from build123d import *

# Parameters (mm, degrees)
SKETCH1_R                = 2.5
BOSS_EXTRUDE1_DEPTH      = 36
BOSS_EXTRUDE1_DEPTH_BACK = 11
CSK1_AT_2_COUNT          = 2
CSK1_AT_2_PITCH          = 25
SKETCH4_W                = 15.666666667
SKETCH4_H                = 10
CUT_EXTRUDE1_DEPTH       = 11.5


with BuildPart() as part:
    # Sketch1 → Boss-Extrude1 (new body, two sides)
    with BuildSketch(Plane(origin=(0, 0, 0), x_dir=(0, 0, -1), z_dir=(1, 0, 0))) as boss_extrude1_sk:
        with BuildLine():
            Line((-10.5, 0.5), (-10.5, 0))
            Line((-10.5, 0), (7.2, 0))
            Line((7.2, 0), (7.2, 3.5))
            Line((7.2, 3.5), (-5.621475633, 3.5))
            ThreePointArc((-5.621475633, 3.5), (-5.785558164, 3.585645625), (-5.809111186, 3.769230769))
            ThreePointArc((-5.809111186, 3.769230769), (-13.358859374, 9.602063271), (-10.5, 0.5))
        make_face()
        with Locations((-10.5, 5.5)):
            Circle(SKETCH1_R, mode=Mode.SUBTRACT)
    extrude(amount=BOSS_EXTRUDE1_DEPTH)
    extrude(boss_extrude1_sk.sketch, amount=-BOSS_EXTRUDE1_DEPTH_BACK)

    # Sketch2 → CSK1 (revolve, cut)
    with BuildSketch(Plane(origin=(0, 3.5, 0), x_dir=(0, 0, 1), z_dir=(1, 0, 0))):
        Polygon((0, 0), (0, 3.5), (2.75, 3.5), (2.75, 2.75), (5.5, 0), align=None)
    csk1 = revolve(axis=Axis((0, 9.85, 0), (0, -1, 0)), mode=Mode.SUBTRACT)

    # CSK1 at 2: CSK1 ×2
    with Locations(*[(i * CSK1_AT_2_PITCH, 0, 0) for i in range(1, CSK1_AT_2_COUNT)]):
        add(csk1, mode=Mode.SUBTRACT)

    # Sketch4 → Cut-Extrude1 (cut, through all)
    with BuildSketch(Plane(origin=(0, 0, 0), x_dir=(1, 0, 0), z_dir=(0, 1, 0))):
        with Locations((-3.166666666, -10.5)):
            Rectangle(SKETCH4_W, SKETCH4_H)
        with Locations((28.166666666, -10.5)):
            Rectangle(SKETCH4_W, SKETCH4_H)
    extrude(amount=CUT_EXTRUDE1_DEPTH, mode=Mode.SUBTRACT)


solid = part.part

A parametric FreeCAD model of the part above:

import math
import FreeCAD as App
import Part
import Sketcher
from FreeCAD import Vector
Q = App.Units.Quantity

doc = App.newDocument("Part")
body = doc.addObject("PartDesign::Body", "Body")

sketch1 = doc.addObject("Sketcher::SketchObject", "Sketch")
body.addObject(sketch1)
sketch1.AttachmentSupport = (doc.YZ_Plane, [""])
sketch1.MapMode = "FlatFace"
sketch1.addGeometry([
    Part.LineSegment(Vector(0.5, 10.5, 0), Vector(0, 10.5, 0)),
    Part.LineSegment(Vector(0, 10.5, 0), Vector(0, -7.2, 0)),
    Part.LineSegment(Vector(0, -7.2, 0), Vector(3.5, -7.2, 0)),
    Part.LineSegment(Vector(3.5, -7.2, 0), Vector(3.5, 5.62, 0)),
    Part.ArcOfCircle(Part.Circle(Vector(3.7, 5.62, 0), Vector(0, 0, 1), 0.2), math.radians(70), math.radians(180)),
    Part.ArcOfCircle(Part.Circle(Vector(5.5, 10.5, 0), Vector(0, 0, 1), 5), math.radians(-110), math.radians(180)),
    Part.Circle(Vector(5.5, 10.5, 0), Vector(0, 0, 1), 2.5),
], False)
sketch1.addConstraint([
    Sketcher.Constraint("Coincident", 0, 2, 1, 1),
    Sketcher.Constraint("Coincident", 1, 2, 2, 1),
    Sketcher.Constraint("Coincident", 2, 2, 3, 1),
    Sketcher.Constraint("Tangent", 3, 2, 4, 2),
    Sketcher.Constraint("Tangent", 4, 1, 5, 1),
    Sketcher.Constraint("Coincident", 5, 2, 0, 1),
    Sketcher.Constraint("Horizontal", 0),
    Sketcher.Constraint("Vertical", 1),
    Sketcher.Constraint("Horizontal", 2),
    Sketcher.Constraint("Vertical", 3),
    Sketcher.Constraint("Coincident", 6, 3, 5, 3),
    Sketcher.Constraint("PointOnObject", 0, 2, -2),
    Sketcher.Constraint("Horizontal", 6, 3, 0, 2),
    Sketcher.Constraint("Diameter", 6, Q("5 mm")),
    Sketcher.Constraint("Radius", 5, Q("5 mm")),
    Sketcher.Constraint("Radius", 4, Q("0.2 mm")),
    Sketcher.Constraint("DistanceX", 0, 2, 0, 1, Q("0.5 mm")),
    Sketcher.Constraint("DistanceX", 2, 1, 2, 2, Q("3.5 mm")),
    Sketcher.Constraint("DistanceY", 1, 2, 1, 1, Q("17.7 mm")),
    Sketcher.Constraint("DistanceY", -1, 1, 5, 3, Q("10.5 mm")),
])
pad1 = doc.addObject("PartDesign::Pad", "Pad")
body.addObject(pad1)
pad1.Profile = sketch1
pad1.Type = "TwoLengths"
pad1.Length = 36
pad1.Length2 = 11

sketch2 = doc.addObject("Sketcher::SketchObject", "Sketch001")
body.addObject(sketch2)
sketch2.AttachmentSupport = (doc.YZ_Plane, [""])
sketch2.MapMode = "FlatFace"
sketch2.addGeometry([
    Part.LineSegment(Vector(0, 0, 0), Vector(3.5, 0, 0)),
    Part.LineSegment(Vector(3.5, 0, 0), Vector(3.5, 5.5, 0)),
    Part.LineSegment(Vector(3.5, 5.5, 0), Vector(0.8, 2.8, 0)),
    Part.LineSegment(Vector(0.8, 2.8, 0), Vector(0, 2.8, 0)),
    Part.LineSegment(Vector(0, 2.8, 0), Vector(0, 0, 0)),
], False)
sketch2.addConstraint([
    Sketcher.Constraint("Coincident", 0, 2, 1, 1),
    Sketcher.Constraint("Coincident", 1, 2, 2, 1),
    Sketcher.Constraint("Coincident", 2, 2, 3, 1),
    Sketcher.Constraint("Coincident", 3, 2, 4, 1),
    Sketcher.Constraint("Coincident", 4, 2, 0, 1),
    Sketcher.Constraint("Horizontal", 0),
    Sketcher.Constraint("Vertical", 1),
    Sketcher.Constraint("Horizontal", 3),
    Sketcher.Constraint("Vertical", 4),
    Sketcher.Constraint("Coincident", 4, 2, -1, 1),
    Sketcher.Constraint("Angle", 2, Q("-135 deg")),
    Sketcher.Constraint("DistanceX", 0, 1, 0, 2, Q("3.5 mm")),
    Sketcher.Constraint("DistanceY", 1, 1, 1, 2, Q("5.5 mm")),
    Sketcher.Constraint("DistanceX", 3, 2, 3, 1, Q("0.75 mm")),
])
groove = doc.addObject("PartDesign::Groove", "Groove")
body.addObject(groove)
groove.Profile = sketch2
groove.ReferenceAxis = (sketch2, ["H_Axis"])
groove.Angle = 360
doc.recompute()

linearpattern = doc.addObject("PartDesign::LinearPattern", "LinearPattern")
body.addObject(linearpattern)
linearpattern.Originals = [groove]
linearpattern.Direction = (doc.X_Axis, [""])
linearpattern.Mode = "offset"
linearpattern.Offset = 25
linearpattern.Occurrences = 2
body.Tip = linearpattern

sketch3 = doc.addObject("Sketcher::SketchObject", "Sketch002")
body.addObject(sketch3)
sketch3.AttachmentSupport = (doc.XZ_Plane, [""])
sketch3.MapMode = "FlatFace"
sketch3.addGeometry([
    Part.LineSegment(Vector(-11, 6, 0), Vector(-11, 16, 0)),
    Part.LineSegment(Vector(-11, 16, 0), Vector(5, 16, 0)),
    Part.LineSegment(Vector(5, 16, 0), Vector(5, 6, 0)),
    Part.LineSegment(Vector(5, 6, 0), Vector(-11, 6, 0)),
    Part.LineSegment(Vector(20, 6, 0), Vector(20, 16, 0)),
    Part.LineSegment(Vector(20, 16, 0), Vector(36, 16, 0)),
    Part.LineSegment(Vector(36, 16, 0), Vector(36, 6, 0)),
    Part.LineSegment(Vector(36, 6, 0), Vector(20, 6, 0)),
], False)
sketch3.addConstraint([
    Sketcher.Constraint("Coincident", 0, 2, 1, 1),
    Sketcher.Constraint("Coincident", 1, 2, 2, 1),
    Sketcher.Constraint("Coincident", 2, 2, 3, 1),
    Sketcher.Constraint("Coincident", 3, 2, 0, 1),
    Sketcher.Constraint("Coincident", 4, 2, 5, 1),
    Sketcher.Constraint("Coincident", 5, 2, 6, 1),
    Sketcher.Constraint("Coincident", 6, 2, 7, 1),
    Sketcher.Constraint("Coincident", 7, 2, 4, 1),
    Sketcher.Constraint("Vertical", 0),
    Sketcher.Constraint("Horizontal", 1),
    Sketcher.Constraint("Vertical", 2),
    Sketcher.Constraint("Horizontal", 3),
    Sketcher.Constraint("Vertical", 4),
    Sketcher.Constraint("Horizontal", 5),
    Sketcher.Constraint("Vertical", 6),
    Sketcher.Constraint("Horizontal", 7),
    Sketcher.Constraint("Horizontal", 1, 2, 4, 2),
    Sketcher.Constraint("Horizontal", 3, 2, 6, 2),
    Sketcher.Constraint("Equal", 3, 5),
    Sketcher.Constraint("DistanceY", 0, 1, 0, 2, Q("10 mm")),
    Sketcher.Constraint("DistanceX", 0, 2, -1, 1, Q("11 mm")),
    Sketcher.Constraint("DistanceX", -1, 1, 5, 2, Q("36 mm")),
    Sketcher.Constraint("DistanceY", -1, 1, 0, 2, Q("15.5 mm")),
    Sketcher.Constraint("DistanceX", 1, 1, 1, 2, Q("15.666667 mm")),
])
pocket1 = doc.addObject("PartDesign::Pocket", "Pocket")
body.addObject(pocket1)
pocket1.Profile = sketch3
pocket1.Type = "ThroughAll"

doc.recompute()
